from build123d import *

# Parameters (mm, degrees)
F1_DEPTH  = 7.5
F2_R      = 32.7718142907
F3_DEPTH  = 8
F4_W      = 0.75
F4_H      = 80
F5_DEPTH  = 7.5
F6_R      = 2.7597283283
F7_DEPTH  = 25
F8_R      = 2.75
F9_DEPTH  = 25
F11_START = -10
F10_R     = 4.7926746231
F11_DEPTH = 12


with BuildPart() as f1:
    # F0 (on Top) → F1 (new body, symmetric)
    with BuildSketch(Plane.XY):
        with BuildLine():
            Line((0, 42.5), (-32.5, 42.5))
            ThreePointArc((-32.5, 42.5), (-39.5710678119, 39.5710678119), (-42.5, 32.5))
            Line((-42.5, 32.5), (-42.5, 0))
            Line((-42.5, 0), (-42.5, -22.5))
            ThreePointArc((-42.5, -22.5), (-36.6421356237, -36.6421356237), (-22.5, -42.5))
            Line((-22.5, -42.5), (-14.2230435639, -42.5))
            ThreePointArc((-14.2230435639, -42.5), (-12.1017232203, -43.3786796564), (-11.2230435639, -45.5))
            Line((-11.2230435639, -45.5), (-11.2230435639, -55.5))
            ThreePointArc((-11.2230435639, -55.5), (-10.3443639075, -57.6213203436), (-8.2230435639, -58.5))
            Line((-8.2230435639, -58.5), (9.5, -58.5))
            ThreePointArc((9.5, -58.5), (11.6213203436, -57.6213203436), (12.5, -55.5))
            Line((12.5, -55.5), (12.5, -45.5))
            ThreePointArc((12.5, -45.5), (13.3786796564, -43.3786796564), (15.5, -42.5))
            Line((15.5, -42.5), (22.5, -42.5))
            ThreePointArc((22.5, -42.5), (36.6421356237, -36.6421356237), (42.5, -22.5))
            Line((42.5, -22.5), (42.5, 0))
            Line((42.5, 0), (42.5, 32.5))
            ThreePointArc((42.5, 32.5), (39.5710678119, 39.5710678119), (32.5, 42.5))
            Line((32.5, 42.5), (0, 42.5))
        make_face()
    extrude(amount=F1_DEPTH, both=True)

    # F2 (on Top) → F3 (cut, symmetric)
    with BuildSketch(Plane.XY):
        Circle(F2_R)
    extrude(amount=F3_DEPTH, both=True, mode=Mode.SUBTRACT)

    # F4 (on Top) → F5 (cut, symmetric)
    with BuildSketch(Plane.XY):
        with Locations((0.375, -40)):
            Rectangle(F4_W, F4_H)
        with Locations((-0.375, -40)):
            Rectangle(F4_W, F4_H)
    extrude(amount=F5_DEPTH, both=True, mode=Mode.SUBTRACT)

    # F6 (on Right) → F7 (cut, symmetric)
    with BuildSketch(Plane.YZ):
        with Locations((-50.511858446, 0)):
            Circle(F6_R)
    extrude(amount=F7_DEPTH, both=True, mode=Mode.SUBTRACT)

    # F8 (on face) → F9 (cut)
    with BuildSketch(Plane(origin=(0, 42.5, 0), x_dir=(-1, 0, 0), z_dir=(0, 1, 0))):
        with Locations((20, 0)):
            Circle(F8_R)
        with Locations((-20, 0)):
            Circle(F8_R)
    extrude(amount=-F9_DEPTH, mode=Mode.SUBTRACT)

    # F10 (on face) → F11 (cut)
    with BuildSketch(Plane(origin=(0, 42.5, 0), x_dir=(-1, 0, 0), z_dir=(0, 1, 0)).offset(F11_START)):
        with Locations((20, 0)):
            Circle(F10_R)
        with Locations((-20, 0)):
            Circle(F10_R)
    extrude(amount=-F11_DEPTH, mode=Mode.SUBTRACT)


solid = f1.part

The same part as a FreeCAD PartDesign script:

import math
import FreeCAD as App
import Part
import Sketcher
Q = App.Units.Quantity

doc = App.newDocument("Part")
body = doc.addObject("PartDesign::Body", "Body")

sketch1 = body.newObject("Sketcher::SketchObject", "Sketch")
sketch1.AttachmentSupport = (doc.getObject("XY_Plane"), [""])
sketch1.MapMode = "FlatFace"
sketch1.addGeometry(Part.ArcOfCircle(Part.Circle(App.Vector(-32.5, 32.5, 0), App.Vector(0, 0, 1), 10), math.radians(90), math.radians(180)), False)
sketch1.addGeometry(Part.LineSegment(App.Vector(-42.5, 32.5, 0), App.Vector(-42.5, -22.5, 0)), False)
sketch1.addGeometry(Part.ArcOfCircle(Part.Circle(App.Vector(-22.5, -22.5, 0), App.Vector(0, 0, 1), 20), math.radians(180), math.radians(270)), False)
sketch1.addGeometry(Part.LineSegment(App.Vector(-22.5, -42.5, 0), App.Vector(-14.2, -42.5, 0)), False)
sketch1.addGeometry(Part.ArcOfCircle(Part.Circle(App.Vector(-14.2, -45.5, 0), App.Vector(0, 0, 1), 3), math.radians(0), math.radians(90)), False)
sketch1.addGeometry(Part.LineSegment(App.Vector(-11.2, -45.5, 0), App.Vector(-11.2, -55.5, 0)), False)
sketch1.addGeometry(Part.ArcOfCircle(Part.Circle(App.Vector(-8.2, -55.5, 0), App.Vector(0, 0, 1), 3), math.radians(180), math.radians(270)), False)
sketch1.addGeometry(Part.LineSegment(App.Vector(-8.2, -58.5, 0), App.Vector(9.5, -58.5, 0)), False)
sketch1.addGeometry(Part.ArcOfCircle(Part.Circle(App.Vector(9.5, -55.5, 0), App.Vector(0, 0, 1), 3), math.radians(-90), math.radians(0)), False)
sketch1.addGeometry(Part.LineSegment(App.Vector(12.5, -55.5, 0), App.Vector(12.5, -45.5, 0)), False)
sketch1.addGeometry(Part.ArcOfCircle(Part.Circle(App.Vector(15.5, -45.5, 0), App.Vector(0, 0, 1), 3), math.radians(90), math.radians(180)), False)
sketch1.addGeometry(Part.LineSegment(App.Vector(15.5, -42.5, 0), App.Vector(22.5, -42.5, 0)), False)
sketch1.addGeometry(Part.ArcOfCircle(Part.Circle(App.Vector(22.5, -22.5, 0), App.Vector(0, 0, 1), 20), math.radians(-90), math.radians(0)), False)
sketch1.addGeometry(Part.LineSegment(App.Vector(42.5, -22.5, 0), App.Vector(42.5, 32.5, 0)), False)
sketch1.addGeometry(Part.ArcOfCircle(Part.Circle(App.Vector(32.5, 32.5, 0), App.Vector(0, 0, 1), 10), math.radians(0), math.radians(90)), False)
sketch1.addGeometry(Part.LineSegment(App.Vector(32.5, 42.5, 0), App.Vector(-32.5, 42.5, 0)), False)
sketch1.addConstraint(Sketcher.Constraint("Tangent", 0, 2, 1, 1))
sketch1.addConstraint(Sketcher.Constraint("Tangent", 1, 2, 2, 1))
sketch1.addConstraint(Sketcher.Constraint("Tangent", 2, 2, 3, 1))
sketch1.addConstraint(Sketcher.Constraint("Tangent", 3, 2, 4, 2))
sketch1.addConstraint(Sketcher.Constraint("Tangent", 4, 1, 5, 1))
sketch1.addConstraint(Sketcher.Constraint("Tangent", 5, 2, 6, 1))
sketch1.addConstraint(Sketcher.Constraint("Tangent", 6, 2, 7, 1))
sketch1.addConstraint(Sketcher.Constraint("Tangent", 7, 2, 8, 1))
sketch1.addConstraint(Sketcher.Constraint("Tangent", 8, 2, 9, 1))
sketch1.addConstraint(Sketcher.Constraint("Tangent", 9, 2, 10, 2))
sketch1.addConstraint(Sketcher.Constraint("Tangent", 10, 1, 11, 1))
sketch1.addConstraint(Sketcher.Constraint("Tangent", 11, 2, 12, 1))
sketch1.addConstraint(Sketcher.Constraint("Tangent", 12, 2, 13, 1))
sketch1.addConstraint(Sketcher.Constraint("Tangent", 13, 2, 14, 1))
sketch1.addConstraint(Sketcher.Constraint("Tangent", 14, 2, 15, 1))
sketch1.addConstraint(Sketcher.Constraint("Tangent", 15, 2, 0, 1))
sketch1.addConstraint(Sketcher.Constraint("Vertical", 1))
sketch1.addConstraint(Sketcher.Constraint("Horizontal", 3))
sketch1.addConstraint(Sketcher.Constraint("Vertical", 5))
sketch1.addConstraint(Sketcher.Constraint("Horizontal", 7))
sketch1.addConstraint(Sketcher.Constraint("Vertical", 9))
sketch1.addConstraint(Sketcher.Constraint("Horizontal", 11))
sketch1.addConstraint(Sketcher.Constraint("Vertical", 13))
sketch1.addConstraint(Sketcher.Constraint("Horizontal", 15))
sketch1.addConstraint(Sketcher.Constraint("Equal", 4, 6))
sketch1.addConstraint(Sketcher.Constraint("Equal", 6, 8))
sketch1.addConstraint(Sketcher.Constraint("Equal", 8, 10))
sketch1.addConstraint(Sketcher.Constraint("Equal", 2, 12))
sketch1.addConstraint(Sketcher.Constraint("Equal", 0, 14))
sketch1.addConstraint(Sketcher.Constraint("Symmetric", 2, 3, 12, 3, -2))
sketch1.addConstraint(Sketcher.Constraint("Radius", 0, Q("10 mm")))
sketch1.addConstraint(Sketcher.Constraint("Radius", 2, Q("20 mm")))
sketch1.addConstraint(Sketcher.Constraint("Radius", 4, Q("3 mm")))
sketch1.addConstraint(Sketcher.Constraint("DistanceX", 11, 1, 11, 2, Q("7 mm")))
sketch1.addConstraint(Sketcher.Constraint("DistanceX", 15, 2, 15, 1, Q("65 mm")))
sketch1.addConstraint(Sketcher.Constraint("DistanceY", 1, 2, 1, 1, Q("55 mm")))
sketch1.addConstraint(Sketcher.Constraint("DistanceY", 5, 2, 5, 1, Q("10 mm")))
sketch1.addConstraint(Sketcher.Constraint("DistanceY", -1, 1, 0, 3, Q("32.5 mm")))
sketch1.addConstraint(Sketcher.Constraint("DistanceX", 3, 1, 3, 2, Q("8.276956 mm")))
pad1 = body.newObject("PartDesign::Pad", "Pad")
pad1.Profile = sketch1
pad1.Length = 15
pad1.Midplane = True

sketch2 = body.newObject("Sketcher::SketchObject", "Sketch001")
sketch2.AttachmentSupport = (doc.getObject("XY_Plane"), [""])
sketch2.MapMode = "FlatFace"
sketch2.addGeometry(Part.Circle(App.Vector(0, 0, 0), App.Vector(0, 0, 1), 33), False)
sketch2.addConstraint(Sketcher.Constraint("Coincident", 0, 3, -1, 1))
sketch2.addConstraint(Sketcher.Constraint("Diameter", 0, Q("65.543629 mm")))
pocket1 = body.newObject("PartDesign::Pocket", "Pocket")
pocket1.Profile = sketch2
pocket1.Length = 16
pocket1.Midplane = True

sketch3 = body.newObject("Sketcher::SketchObject", "Sketch002")
sketch3.AttachmentSupport = (doc.getObject("XY_Plane"), [""])
sketch3.MapMode = "FlatFace"
sketch3.addGeometry(Part.LineSegment(App.Vector(0.8, -80, 0), App.Vector(0.8, 0, 0)), False)
sketch3.addGeometry(Part.LineSegment(App.Vector(0.8, 0, 0), App.Vector(-0.8, 0, 0)), False)
sketch3.addGeometry(Part.LineSegment(App.Vector(-0.8, 0, 0), App.Vector(-0.8, -80, 0)), False)
sketch3.addGeometry(Part.LineSegment(App.Vector(-0.8, -80, 0), App.Vector(0.8, -80, 0)), False)
sketch3.addConstraint(Sketcher.Constraint("Coincident", 0, 2, 1, 1))
sketch3.addConstraint(Sketcher.Constraint("Coincident", 1, 2, 2, 1))
sketch3.addConstraint(Sketcher.Constraint("Coincident", 2, 2, 3, 1))
sketch3.addConstraint(Sketcher.Constraint("Coincident", 3, 2, 0, 1))
sketch3.addConstraint(Sketcher.Constraint("Vertical", 0))
sketch3.addConstraint(Sketcher.Constraint("Horizontal", 1))
sketch3.addConstraint(Sketcher.Constraint("Vertical", 2))
sketch3.addConstraint(Sketcher.Constraint("Horizontal", 3))
sketch3.addConstraint(Sketcher.Constraint("Symmetric", 0, 2, 1, 2, -1, 1))
sketch3.addConstraint(Sketcher.Constraint("DistanceY", 0, 1, 0, 2, Q("80 mm")))
sketch3.addConstraint(Sketcher.Constraint("DistanceX", 1, 2, 1, 1, Q("1.5 mm")))
pocket2 = body.newObject("PartDesign::Pocket", "Pocket001")
pocket2.Profile = sketch3
pocket2.Length = 15
pocket2.Midplane = True

sketch4 = body.newObject("Sketcher::SketchObject", "Sketch003")
sketch4.AttachmentSupport = (doc.getObject("YZ_Plane"), [""])
sketch4.MapMode = "FlatFace"
sketch4.addGeometry(Part.Circle(App.Vector(-50.5, 0, 0), App.Vector(0, 0, 1), 2.8), False)
sketch4.addConstraint(Sketcher.Constraint("PointOnObject", 0, 3, -1))
sketch4.addConstraint(Sketcher.Constraint("Diameter", 0, Q("5.519457 mm")))
sketch4.addConstraint(Sketcher.Constraint("DistanceX", 0, 3, -1, 1, Q("50.511858 mm")))
pocket3 = body.newObject("PartDesign::Pocket", "Pocket002")
pocket3.Profile = sketch4
pocket3.Length = 50
pocket3.Midplane = True

sketch5 = body.newObject("Sketcher::SketchObject", "Sketch004")
sketch5.AttachmentSupport = (doc.getObject("XZ_Plane"), [""])
sketch5.MapMode = "FlatFace"
sketch5.AttachmentOffset = App.Placement(App.Vector(0, 0, -42.5), App.Rotation())
sketch5.addGeometry(Part.Circle(App.Vector(-20, 0, 0), App.Vector(0, 0, 1), 2.8), False)
sketch5.addGeometry(Part.Circle(App.Vector(20, 0, 0), App.Vector(0, 0, 1), 2.8), False)
sketch5.addConstraint(Sketcher.Constraint("Equal", 0, 1))
sketch5.addConstraint(Sketcher.Constraint("Symmetric", 0, 3, 1, 3, -1, 1))
sketch5.addConstraint(Sketcher.Constraint("PointOnObject", 0, 3, -1))
sketch5.addConstraint(Sketcher.Constraint("Diameter", 0, Q("5.5 mm")))
sketch5.addConstraint(Sketcher.Constraint("DistanceX", 0, 3, -1, 1, Q("20 mm")))
pocket4 = body.newObject("PartDesign::Pocket", "Pocket003")
pocket4.Profile = sketch5
pocket4.Length = 25
pocket4.Reversed = True

sketch6 = body.newObject("Sketcher::SketchObject", "Sketch005")
sketch6.AttachmentSupport = (doc.getObject("XZ_Plane"), [""])
sketch6.MapMode = "FlatFace"
sketch6.AttachmentOffset = App.Placement(App.Vector(0, 0, -32.5), App.Rotation())
sketch6.addGeometry(Part.Circle(App.Vector(-20, 0, 0), App.Vector(0, 0, 1), 4.8), False)
sketch6.addGeometry(Part.Circle(App.Vector(20, 0, 0), App.Vector(0, 0, 1), 4.8), False)
sketch6.addConstraint(Sketcher.Constraint("Equal", 0, 1))
sketch6.addConstraint(Sketcher.Constraint("Symmetric", 0, 3, 1, 3, -1, 1))
sketch6.addConstraint(Sketcher.Constraint("PointOnObject", 0, 3, -1))
sketch6.addConstraint(Sketcher.Constraint("DistanceX", 0, 3, -1, 1, Q("20 mm")))
sketch6.addConstraint(Sketcher.Constraint("Diameter", 0, Q("9.585349 mm")))
pocket5 = body.newObject("PartDesign::Pocket", "Pocket004")
pocket5.Profile = sketch6
pocket5.Length = 12
pocket5.Reversed = True

doc.recompute()
